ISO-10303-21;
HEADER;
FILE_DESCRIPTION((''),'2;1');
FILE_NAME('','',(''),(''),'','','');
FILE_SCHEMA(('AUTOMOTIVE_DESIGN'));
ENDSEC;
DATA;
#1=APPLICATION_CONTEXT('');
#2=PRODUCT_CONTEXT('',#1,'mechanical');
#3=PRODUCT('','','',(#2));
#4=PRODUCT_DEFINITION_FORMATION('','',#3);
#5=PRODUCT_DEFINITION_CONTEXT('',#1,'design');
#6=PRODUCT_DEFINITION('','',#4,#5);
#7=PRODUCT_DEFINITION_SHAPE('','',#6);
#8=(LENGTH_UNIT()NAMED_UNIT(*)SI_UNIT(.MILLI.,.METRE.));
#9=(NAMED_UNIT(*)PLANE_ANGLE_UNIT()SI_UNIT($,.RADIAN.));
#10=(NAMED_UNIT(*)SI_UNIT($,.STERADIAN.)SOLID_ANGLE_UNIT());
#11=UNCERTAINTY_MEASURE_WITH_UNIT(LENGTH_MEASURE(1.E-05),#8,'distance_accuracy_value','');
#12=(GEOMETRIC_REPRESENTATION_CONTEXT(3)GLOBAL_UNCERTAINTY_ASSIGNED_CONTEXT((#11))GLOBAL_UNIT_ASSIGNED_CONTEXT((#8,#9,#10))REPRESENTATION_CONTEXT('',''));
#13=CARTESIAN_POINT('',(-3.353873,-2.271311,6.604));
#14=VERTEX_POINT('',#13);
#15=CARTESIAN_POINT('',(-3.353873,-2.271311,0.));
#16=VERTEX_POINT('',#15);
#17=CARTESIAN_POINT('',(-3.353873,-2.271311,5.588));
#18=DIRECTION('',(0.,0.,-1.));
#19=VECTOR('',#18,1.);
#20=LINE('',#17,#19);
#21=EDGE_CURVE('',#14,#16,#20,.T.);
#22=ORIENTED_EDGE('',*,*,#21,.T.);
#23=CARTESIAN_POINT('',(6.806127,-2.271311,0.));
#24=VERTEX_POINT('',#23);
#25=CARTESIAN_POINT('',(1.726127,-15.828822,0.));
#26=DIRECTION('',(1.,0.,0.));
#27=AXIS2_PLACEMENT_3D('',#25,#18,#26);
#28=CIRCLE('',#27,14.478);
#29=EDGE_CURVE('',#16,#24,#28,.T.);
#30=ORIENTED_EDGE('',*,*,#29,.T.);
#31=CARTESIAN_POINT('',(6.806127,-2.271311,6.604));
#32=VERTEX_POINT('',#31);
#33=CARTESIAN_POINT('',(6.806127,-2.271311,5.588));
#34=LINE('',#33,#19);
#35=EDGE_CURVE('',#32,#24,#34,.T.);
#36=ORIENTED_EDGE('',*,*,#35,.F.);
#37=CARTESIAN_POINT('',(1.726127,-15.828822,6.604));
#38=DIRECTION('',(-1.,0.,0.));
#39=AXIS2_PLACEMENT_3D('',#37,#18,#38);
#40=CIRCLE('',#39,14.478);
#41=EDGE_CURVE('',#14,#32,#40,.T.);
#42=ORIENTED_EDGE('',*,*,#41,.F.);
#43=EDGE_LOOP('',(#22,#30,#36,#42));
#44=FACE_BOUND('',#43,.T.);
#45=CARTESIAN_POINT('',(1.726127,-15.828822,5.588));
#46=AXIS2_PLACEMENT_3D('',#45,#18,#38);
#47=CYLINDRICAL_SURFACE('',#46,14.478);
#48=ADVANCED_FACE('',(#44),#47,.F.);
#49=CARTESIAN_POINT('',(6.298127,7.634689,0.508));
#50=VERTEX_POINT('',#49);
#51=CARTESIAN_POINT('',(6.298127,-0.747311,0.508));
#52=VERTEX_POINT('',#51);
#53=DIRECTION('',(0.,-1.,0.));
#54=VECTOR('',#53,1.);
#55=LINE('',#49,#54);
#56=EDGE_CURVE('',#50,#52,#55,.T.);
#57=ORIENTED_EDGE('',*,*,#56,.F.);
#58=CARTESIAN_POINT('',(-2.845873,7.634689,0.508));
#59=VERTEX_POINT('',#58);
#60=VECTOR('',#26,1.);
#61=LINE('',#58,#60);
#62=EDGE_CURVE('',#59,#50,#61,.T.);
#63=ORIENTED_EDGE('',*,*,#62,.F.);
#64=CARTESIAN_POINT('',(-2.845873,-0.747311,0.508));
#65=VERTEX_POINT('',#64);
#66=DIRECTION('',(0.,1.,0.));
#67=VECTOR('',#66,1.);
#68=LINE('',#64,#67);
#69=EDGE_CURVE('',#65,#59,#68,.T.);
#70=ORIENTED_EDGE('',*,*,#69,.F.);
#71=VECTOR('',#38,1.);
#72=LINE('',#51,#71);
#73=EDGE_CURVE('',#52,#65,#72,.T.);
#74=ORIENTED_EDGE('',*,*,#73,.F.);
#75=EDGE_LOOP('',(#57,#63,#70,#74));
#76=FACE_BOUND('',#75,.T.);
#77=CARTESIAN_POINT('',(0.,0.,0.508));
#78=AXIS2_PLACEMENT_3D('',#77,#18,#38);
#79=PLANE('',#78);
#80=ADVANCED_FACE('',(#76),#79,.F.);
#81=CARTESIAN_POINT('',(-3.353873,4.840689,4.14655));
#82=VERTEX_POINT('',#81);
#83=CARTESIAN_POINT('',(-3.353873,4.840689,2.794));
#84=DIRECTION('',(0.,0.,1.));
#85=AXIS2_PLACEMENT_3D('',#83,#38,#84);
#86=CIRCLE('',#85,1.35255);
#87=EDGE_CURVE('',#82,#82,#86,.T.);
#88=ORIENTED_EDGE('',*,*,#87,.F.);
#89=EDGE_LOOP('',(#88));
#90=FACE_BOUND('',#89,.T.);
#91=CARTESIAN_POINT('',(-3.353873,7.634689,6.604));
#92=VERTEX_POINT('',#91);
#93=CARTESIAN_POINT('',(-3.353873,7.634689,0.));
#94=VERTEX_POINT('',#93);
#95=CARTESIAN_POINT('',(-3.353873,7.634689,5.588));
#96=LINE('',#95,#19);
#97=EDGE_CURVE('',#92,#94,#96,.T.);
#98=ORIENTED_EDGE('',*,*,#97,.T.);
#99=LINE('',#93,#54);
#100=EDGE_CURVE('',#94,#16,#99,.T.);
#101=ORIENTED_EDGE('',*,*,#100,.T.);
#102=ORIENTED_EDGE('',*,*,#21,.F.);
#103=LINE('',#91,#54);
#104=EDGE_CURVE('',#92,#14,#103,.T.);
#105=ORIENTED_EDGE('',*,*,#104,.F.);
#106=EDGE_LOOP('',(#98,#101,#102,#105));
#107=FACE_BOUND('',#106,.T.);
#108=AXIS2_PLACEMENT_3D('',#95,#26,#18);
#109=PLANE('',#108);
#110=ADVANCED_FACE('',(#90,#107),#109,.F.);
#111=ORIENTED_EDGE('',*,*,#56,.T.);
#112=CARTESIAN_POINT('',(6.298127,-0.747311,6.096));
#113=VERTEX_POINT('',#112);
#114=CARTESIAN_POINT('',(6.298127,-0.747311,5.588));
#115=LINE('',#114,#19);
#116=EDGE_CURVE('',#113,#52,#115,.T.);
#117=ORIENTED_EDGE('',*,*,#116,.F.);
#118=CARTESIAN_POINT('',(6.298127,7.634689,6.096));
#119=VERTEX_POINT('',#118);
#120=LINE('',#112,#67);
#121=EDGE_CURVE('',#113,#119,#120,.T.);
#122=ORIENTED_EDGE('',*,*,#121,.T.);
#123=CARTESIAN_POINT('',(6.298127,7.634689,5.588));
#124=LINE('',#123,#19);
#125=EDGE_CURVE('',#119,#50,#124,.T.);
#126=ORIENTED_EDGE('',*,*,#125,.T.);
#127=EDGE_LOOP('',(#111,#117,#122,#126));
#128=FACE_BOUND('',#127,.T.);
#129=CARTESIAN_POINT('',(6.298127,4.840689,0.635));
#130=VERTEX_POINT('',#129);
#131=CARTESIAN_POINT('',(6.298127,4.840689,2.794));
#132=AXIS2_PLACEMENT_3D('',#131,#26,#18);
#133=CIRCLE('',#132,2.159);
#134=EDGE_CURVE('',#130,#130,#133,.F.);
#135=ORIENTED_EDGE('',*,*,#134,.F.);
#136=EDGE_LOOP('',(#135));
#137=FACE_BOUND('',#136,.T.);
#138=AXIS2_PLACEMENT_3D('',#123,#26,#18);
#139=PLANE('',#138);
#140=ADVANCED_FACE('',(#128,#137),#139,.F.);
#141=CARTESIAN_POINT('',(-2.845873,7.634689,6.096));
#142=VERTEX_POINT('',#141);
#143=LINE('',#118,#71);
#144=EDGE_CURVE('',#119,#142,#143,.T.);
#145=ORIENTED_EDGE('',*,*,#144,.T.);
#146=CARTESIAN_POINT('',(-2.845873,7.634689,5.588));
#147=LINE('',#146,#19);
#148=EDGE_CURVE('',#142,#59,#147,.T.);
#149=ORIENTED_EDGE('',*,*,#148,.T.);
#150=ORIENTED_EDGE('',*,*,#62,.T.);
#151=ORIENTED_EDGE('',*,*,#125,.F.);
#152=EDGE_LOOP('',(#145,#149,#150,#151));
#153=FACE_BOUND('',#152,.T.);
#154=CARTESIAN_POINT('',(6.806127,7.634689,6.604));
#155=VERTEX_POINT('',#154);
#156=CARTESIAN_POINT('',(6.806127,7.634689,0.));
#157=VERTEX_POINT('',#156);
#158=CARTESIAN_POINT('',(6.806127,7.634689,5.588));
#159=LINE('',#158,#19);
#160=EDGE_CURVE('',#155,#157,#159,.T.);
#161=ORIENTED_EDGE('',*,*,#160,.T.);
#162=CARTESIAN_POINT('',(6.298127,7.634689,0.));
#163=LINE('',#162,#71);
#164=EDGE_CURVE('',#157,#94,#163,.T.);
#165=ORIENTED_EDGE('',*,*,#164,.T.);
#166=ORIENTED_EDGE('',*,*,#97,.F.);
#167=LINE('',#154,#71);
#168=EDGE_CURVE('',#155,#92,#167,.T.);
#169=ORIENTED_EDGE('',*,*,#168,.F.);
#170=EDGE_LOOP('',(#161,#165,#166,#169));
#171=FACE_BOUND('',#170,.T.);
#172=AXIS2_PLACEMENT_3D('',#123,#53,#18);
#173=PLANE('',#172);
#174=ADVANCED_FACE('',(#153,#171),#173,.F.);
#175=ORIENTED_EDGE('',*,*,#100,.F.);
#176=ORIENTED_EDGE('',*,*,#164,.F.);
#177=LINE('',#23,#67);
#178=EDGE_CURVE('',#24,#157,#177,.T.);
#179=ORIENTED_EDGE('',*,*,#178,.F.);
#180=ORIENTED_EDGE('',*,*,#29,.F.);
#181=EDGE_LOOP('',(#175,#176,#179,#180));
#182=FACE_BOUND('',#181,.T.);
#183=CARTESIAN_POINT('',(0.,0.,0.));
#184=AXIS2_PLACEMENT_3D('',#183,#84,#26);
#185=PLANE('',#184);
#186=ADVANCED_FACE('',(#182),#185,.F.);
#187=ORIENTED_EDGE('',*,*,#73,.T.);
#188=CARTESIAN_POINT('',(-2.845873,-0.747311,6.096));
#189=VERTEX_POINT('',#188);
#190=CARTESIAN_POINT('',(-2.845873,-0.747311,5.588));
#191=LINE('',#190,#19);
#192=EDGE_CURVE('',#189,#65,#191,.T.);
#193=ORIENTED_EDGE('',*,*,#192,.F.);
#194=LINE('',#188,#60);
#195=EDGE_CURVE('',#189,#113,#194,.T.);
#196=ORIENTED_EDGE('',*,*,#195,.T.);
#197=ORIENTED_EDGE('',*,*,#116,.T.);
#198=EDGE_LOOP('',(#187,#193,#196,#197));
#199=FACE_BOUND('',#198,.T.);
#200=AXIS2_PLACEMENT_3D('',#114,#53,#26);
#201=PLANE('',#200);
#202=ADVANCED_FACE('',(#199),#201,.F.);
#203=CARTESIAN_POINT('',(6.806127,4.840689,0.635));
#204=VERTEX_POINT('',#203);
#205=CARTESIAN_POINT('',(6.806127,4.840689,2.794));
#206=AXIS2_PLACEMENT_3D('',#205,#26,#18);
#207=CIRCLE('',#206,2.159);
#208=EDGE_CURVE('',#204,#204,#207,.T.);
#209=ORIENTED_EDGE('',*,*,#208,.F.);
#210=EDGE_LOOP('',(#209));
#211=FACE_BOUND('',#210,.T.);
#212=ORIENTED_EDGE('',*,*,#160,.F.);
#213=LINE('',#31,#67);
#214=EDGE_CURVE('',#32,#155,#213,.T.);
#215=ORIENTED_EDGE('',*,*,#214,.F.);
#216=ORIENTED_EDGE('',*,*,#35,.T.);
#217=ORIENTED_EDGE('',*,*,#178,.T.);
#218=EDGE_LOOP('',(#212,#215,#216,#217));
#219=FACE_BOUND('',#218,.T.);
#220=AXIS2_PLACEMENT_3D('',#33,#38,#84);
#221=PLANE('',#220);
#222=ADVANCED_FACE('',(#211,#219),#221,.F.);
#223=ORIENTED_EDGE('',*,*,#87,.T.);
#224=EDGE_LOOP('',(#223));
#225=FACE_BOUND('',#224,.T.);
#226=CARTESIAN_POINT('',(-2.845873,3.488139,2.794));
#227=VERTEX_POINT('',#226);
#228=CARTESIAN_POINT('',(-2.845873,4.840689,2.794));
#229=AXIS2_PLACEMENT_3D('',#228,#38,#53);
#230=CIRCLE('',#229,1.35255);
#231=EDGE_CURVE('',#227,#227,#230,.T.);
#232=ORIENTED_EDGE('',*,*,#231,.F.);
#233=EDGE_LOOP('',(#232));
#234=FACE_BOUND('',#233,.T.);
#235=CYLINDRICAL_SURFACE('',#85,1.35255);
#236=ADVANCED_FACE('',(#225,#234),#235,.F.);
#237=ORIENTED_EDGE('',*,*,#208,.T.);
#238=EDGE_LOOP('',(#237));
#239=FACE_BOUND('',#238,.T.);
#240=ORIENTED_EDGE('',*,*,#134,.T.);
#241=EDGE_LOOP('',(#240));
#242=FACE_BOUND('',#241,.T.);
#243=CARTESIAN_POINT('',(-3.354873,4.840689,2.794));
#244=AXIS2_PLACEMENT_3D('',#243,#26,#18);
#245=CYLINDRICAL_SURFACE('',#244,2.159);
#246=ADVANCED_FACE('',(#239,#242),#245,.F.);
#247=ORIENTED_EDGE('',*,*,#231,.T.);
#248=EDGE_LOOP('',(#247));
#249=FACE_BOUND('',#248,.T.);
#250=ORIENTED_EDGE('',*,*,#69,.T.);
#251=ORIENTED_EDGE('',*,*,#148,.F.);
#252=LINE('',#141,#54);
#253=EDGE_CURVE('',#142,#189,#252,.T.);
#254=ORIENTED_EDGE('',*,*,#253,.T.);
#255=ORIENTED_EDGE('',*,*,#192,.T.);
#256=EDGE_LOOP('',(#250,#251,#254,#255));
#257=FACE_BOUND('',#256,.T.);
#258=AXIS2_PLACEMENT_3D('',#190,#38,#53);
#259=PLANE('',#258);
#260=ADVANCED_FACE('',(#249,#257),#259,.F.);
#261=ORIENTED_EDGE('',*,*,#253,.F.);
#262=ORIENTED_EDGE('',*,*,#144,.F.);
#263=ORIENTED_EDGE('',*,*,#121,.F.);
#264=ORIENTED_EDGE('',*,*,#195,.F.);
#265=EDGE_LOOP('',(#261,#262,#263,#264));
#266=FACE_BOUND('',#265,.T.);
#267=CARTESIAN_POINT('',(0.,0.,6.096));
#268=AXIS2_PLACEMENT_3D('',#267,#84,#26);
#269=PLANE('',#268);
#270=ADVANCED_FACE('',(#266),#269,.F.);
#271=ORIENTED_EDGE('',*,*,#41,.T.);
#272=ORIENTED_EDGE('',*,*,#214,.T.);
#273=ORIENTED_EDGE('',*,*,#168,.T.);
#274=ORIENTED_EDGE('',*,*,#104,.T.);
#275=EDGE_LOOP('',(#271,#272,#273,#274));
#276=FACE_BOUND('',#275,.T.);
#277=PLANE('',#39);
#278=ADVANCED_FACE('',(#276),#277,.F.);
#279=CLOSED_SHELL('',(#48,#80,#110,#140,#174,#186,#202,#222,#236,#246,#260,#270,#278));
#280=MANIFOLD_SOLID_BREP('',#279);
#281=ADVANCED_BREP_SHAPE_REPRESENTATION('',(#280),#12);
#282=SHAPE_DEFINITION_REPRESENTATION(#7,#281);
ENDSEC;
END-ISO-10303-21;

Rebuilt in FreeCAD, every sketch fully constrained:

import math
import FreeCAD as App
import Part
import Sketcher
from FreeCAD import Vector
Q = App.Units.Quantity


def add_polygon(sketch, points):
    """Adds a closed chain of lines whose ends are joined by coincident constraints."""
    first, n = sketch.GeometryCount, len(points)
    for a, b in zip(points, points[1:] + points[:1]):
        sketch.addGeometry(Part.LineSegment(App.Vector(*a, 0), App.Vector(*b, 0)), False)
    for i in range(n):
        sketch.addConstraint(Sketcher.Constraint("Coincident", first + i, 2, first + (i + 1) % n, 1))

doc = App.newDocument("Part")
params = doc.addObject("Spreadsheet::Sheet", "Params")
for row, (alias, value) in enumerate([
    ("sketch1_width", "0.4 in"),
    ("sketch1_width2", "0.02 in"),
    ("sketch1_height", "0.39 in"),
    ("sketch1_height2", "0.33 in"),
    ("pad1_length", "0.22 in"),
    ("hole_diameter", "0.1065 in"),
    ("hole_depth", "0.02 in"),
    ("sketch3_diameter", "0.17 in"),
    ("sketch4_radius", "0.57 in"),
    ("sketch4_width", "0.4 in"),
    ("sketch5_radius", "0.57 in"),
    ("sketch5_width", "0.4 in"),
    ("sketch5_height", "0.39 in"),
    ("pad2_length", "0.04 in"),
    ("sketch6_width", "0.36 in"),
    ("pocket3_length", "0.33 in"),
    ("sketch7_width", "0.36 in"),
    ("sketch7_height", "0.33 in"),
    ("pad3_length", "0.02 in"),
    ("sketch8_width", "0.36 in"),
    ("sketch8_height", "0.33 in"),
    ("pad4_length", "0.02 in"),
], start=1):
    params.set(f"A{row}", alias)
    params.set(f"B{row}", "=" + value)
    params.setAlias(f"B{row}", alias)

body = doc.addObject("PartDesign::Body", "Body")

# Sketch on XY plane
sketch1 = body.newObject("Sketcher::SketchObject", "Sketch")
sketch1.AttachmentSupport = (doc.getObject("XY_Plane"), [""])
sketch1.MapMode = "FlatFace"
add_polygon(sketch1, [(-3.4, 7.6), (-3.4, -2.3), (6.8, -2.3), (6.8, 7.6), (6.3, 7.6), (6.3, -0.7), (-2.8, -0.7), (-2.8, 7.6)])  # lines 0-7
sketch1.addConstraint([
    Sketcher.Constraint("Vertical", 0),
    Sketcher.Constraint("Horizontal", 1),
    Sketcher.Constraint("Vertical", 2),
    Sketcher.Constraint("Horizontal", 3),
    Sketcher.Constraint("Vertical", 4),
    Sketcher.Constraint("Horizontal", 5),
    Sketcher.Constraint("Vertical", 6),
    Sketcher.Constraint("Horizontal", 7),
    Sketcher.Constraint("Horizontal", 3, 2, 6, 2),
    Sketcher.Constraint("Equal", 3, 7),
    Sketcher.Constraint("DistanceX", 1, 1, 1, 2, Q("0.4 in")),
    Sketcher.Constraint("DistanceX", 3, 2, 3, 1, Q("0.02 in")),
    Sketcher.Constraint("DistanceY", 0, 2, 0, 1, Q("0.39 in")),
    Sketcher.Constraint("DistanceY", 4, 2, 4, 1, Q("0.33 in")),
    Sketcher.Constraint("DistanceY", 0, 2, -1, 1, Q("2.271311 mm")),
    Sketcher.Constraint("DistanceX", 0, 2, -1, 1, Q("3.353873 mm")),
])
sketch1.setExpression("Constraints[18]", "Params.sketch1_width")
sketch1.setExpression("Constraints[19]", "Params.sketch1_width2")
sketch1.setExpression("Constraints[20]", "Params.sketch1_height")
sketch1.setExpression("Constraints[21]", "Params.sketch1_height2")
pad1 = body.newObject("PartDesign::Pad", "Pad")
pad1.Profile = sketch1
pad1.setExpression("Length", "Params.pad1_length")

# Sketch on YZ plane
sketch2 = body.newObject("Sketcher::SketchObject", "Sketch001")
sketch2.AttachmentSupport = (doc.getObject("YZ_Plane"), [""])
sketch2.MapMode = "FlatFace"
sketch2.AttachmentOffset = App.Placement(Vector(0, 0, -3.353873), App.Rotation())
sketch2.addGeometry(Part.Circle(Vector(4.8, 2.8, 0), Vector(0, 0, 1), 1.4), False)
sketch2.addConstraint([
    Sketcher.Constraint("Diameter", 0, Q("0.1065 in")),
    Sketcher.Constraint("DistanceY", -1, 1, 0, 3, Q("0.11 in")),
    Sketcher.Constraint("DistanceX", -1, 1, 0, 3, Q("4.840689 mm")),
])
doc.recompute()
hole = body.newObject("PartDesign::Hole", "Hole")
hole.Profile = sketch2
hole.ThreadType = "None"
hole.setExpression("Diameter", "Params.hole_diameter")
hole.DepthType = "Dimension"
hole.setExpression("Depth", "Params.hole_depth")
hole.DrillPoint = "Flat"
hole.Reversed = True

# Sketch on YZ plane
sketch3 = body.newObject("Sketcher::SketchObject", "Sketch002")
sketch3.AttachmentSupport = (doc.getObject("YZ_Plane"), [""])
sketch3.MapMode = "FlatFace"
sketch3.AttachmentOffset = App.Placement(Vector(0, 0, 6.806127), App.Rotation())
sketch3.addGeometry(Part.Circle(Vector(4.8, 2.8, 0), Vector(0, 0, 1), 2.2), False)
sketch3.addConstraint([
    Sketcher.Constraint("Diameter", 0, Q("0.17 in")),
    Sketcher.Constraint("DistanceY", -1, 1, 0, 3, Q("0.11 in")),
    Sketcher.Constraint("DistanceX", -1, 1, 0, 3, Q("4.840689 mm")),
])
sketch3.setExpression("Constraints[0]", "Params.sketch3_diameter")
pocket1 = body.newObject("PartDesign::Pocket", "Pocket")
pocket1.Profile = sketch3
pocket1.Type = "UpToFirst"

# Sketch on XY plane
sketch4 = body.newObject("Sketcher::SketchObject", "Sketch003")
sketch4.AttachmentSupport = (doc.getObject("XY_Plane"), [""])
sketch4.MapMode = "FlatFace"
sketch4.addGeometry([
    Part.LineSegment(Vector(7, -2, 0), Vector(-3, -2, 0)),
    Part.ArcOfCircle(Part.Circle(Vector(2, -16, 0), Vector(0, 0, 1), 14), math.radians(69), math.radians(111)),
], False)
sketch4.addConstraint([
    Sketcher.Constraint("Coincident", 0, 1, 1, 1),
    Sketcher.Constraint("Coincident", 1, 2, 0, 2),
    Sketcher.Constraint("Horizontal", 0),
    Sketcher.Constraint("Radius", 1, Q("0.57 in")),
    Sketcher.Constraint("DistanceX", 0, 2, 0, 1, Q("0.4 in")),
    Sketcher.Constraint("DistanceY", 1, 3, -1, 1, Q("15.828822 mm")),
    Sketcher.Constraint("DistanceX", -1, 1, 1, 3, Q("1.726127 mm")),
])
sketch4.setExpression("Constraints[3]", "Params.sketch4_radius")
sketch4.setExpression("Constraints[4]", "Params.sketch4_width")
pocket2 = body.newObject("PartDesign::Pocket", "Pocket001")
pocket2.Profile = sketch4
pocket2.Type = "ThroughAll"
pocket2.Reversed = True

# Sketch on XY plane
sketch5 = body.newObject("Sketcher::SketchObject", "Sketch004")
sketch5.AttachmentSupport = (doc.getObject("XY_Plane"), [""])
sketch5.MapMode = "FlatFace"
sketch5.AttachmentOffset = App.Placement(Vector(0, 0, 0.22 * 25.4), App.Rotation())
sketch5.addGeometry([
    Part.LineSegment(Vector(7, 8, 0), Vector(-3, 8, 0)),
    Part.LineSegment(Vector(-3, 8, 0), Vector(-3, -2, 0)),
    Part.ArcOfCircle(Part.Circle(Vector(2, -16, 0), Vector(0, 0, 1), 14), math.radians(69), math.radians(111)),
    Part.LineSegment(Vector(7, -2, 0), Vector(7, 8, 0)),
], False)
sketch5.addConstraint([
    Sketcher.Constraint("Coincident", 0, 2, 1, 1),
    Sketcher.Constraint("Coincident", 1, 2, 2, 2),
    Sketcher.Constraint("Coincident", 2, 1, 3, 1),
    Sketcher.Constraint("Coincident", 3, 2, 0, 1),
    Sketcher.Constraint("Horizontal", 0),
    Sketcher.Constraint("Vertical", 1),
    Sketcher.Constraint("Vertical", 3),
    Sketcher.Constraint("Horizontal", 1, 2, 2, 1),
    Sketcher.Constraint("Radius", 2, Q("0.57 in")),
    Sketcher.Constraint("DistanceX", 0, 2, 0, 1, Q("0.4 in")),
    Sketcher.Constraint("DistanceY", 1, 2, 1, 1, Q("0.39 in")),
    Sketcher.Constraint("DistanceY", 2, 3, -1, 1, Q("15.828822 mm")),
    Sketcher.Constraint("DistanceX", -1, 1, 2, 3, Q("1.726127 mm")),
])
sketch5.setExpression("Constraints[8]", "Params.sketch5_radius")
sketch5.setExpression("Constraints[9]", "Params.sketch5_width")
sketch5.setExpression("Constraints[10]", "Params.sketch5_height")
pad2 = body.newObject("PartDesign::Pad", "Pad001")
pad2.Profile = sketch5
pad2.setExpression("Length", "Params.pad2_length")

# Sketch on XZ plane
sketch6 = body.newObject("Sketcher::SketchObject", "Sketch005")
sketch6.AttachmentSupport = (doc.getObject("XZ_Plane"), [""])
sketch6.MapMode = "FlatFace"
sketch6.AttachmentOffset = App.Placement(Vector(0, 0, -7.634689), App.Rotation())
add_polygon(sketch6, [(-2.8, 5.6), (-2.8, 8.2), (6.3, 8.2), (6.3, 5.6)])  # lines 0-3
sketch6.addConstraint([
    Sketcher.Constraint("Vertical", 0),
    Sketcher.Constraint("Horizontal", 1),
    Sketcher.Constraint("Vertical", 2),
    Sketcher.Constraint("Horizontal", 3),
    Sketcher.Constraint("DistanceX", 1, 1, 1, 2, Q("0.36 in")),
    Sketcher.Constraint("DistanceY", -1, 1, 2, 2, Q("0.22 in")),
    Sketcher.Constraint("DistanceY", 0, 1, 0, 2, Q("2.566925 mm")),
    Sketcher.Constraint("DistanceX", 0, 2, -1, 1, Q("2.845873 mm")),
])
sketch6.setExpression("Constraints[8]", "Params.sketch6_width")
pocket3 = body.newObject("PartDesign::Pocket", "Pocket002")
pocket3.Profile = sketch6
pocket3.setExpression("Length", "Params.pocket3_length")
pocket3.Reversed = True

# Sketch on XY plane
sketch7 = body.newObject("Sketcher::SketchObject", "Sketch006")
sketch7.AttachmentSupport = (doc.getObject("XY_Plane"), [""])
sketch7.MapMode = "FlatFace"
sketch7.AttachmentOffset = App.Placement(Vector(0, 0, 0.26 * 25.4), App.Rotation())
add_polygon(sketch7, [(-3, 8), (-3, -1), (6, -1), (6, 8)])  # lines 0-3
sketch7.addConstraint([
    Sketcher.Constraint("Vertical", 0),
    Sketcher.Constraint("Horizontal", 1),
    Sketcher.Constraint("Vertical", 2),
    Sketcher.Constraint("Horizontal", 3),
    Sketcher.Constraint("DistanceX", 1, 1, 1, 2, Q("0.36 in")),
    Sketcher.Constraint("DistanceY", 0, 2, 0, 1, Q("0.33 in")),
    Sketcher.Constraint("DistanceY", 0, 2, -1, 1, Q("0.747311 mm")),
    Sketcher.Constraint("DistanceX", 0, 2, -1, 1, Q("2.845873 mm")),
])
sketch7.setExpression("Constraints[8]", "Params.sketch7_width")
sketch7.setExpression("Constraints[9]", "Params.sketch7_height")
pad3 = body.newObject("PartDesign::Pad", "Pad002")
pad3.Profile = sketch7
pad3.setExpression("Length", "Params.pad3_length")
pad3.Reversed = True

# Sketch on XY plane
sketch8 = body.newObject("Sketcher::SketchObject", "Sketch007")
sketch8.AttachmentSupport = (doc.getObject("XY_Plane"), [""])
sketch8.MapMode = "FlatFace"
add_polygon(sketch8, [(6, 8), (6, -1), (-3, -1), (-3, 8)])  # lines 0-3
sketch8.addConstraint([
    Sketcher.Constraint("Vertical", 0),
    Sketcher.Constraint("Horizontal", 1),
    Sketcher.Constraint("Vertical", 2),
    Sketcher.Constraint("Horizontal", 3),
    Sketcher.Constraint("DistanceX", 1, 2, 1, 1, Q("0.36 in")),
    Sketcher.Constraint("DistanceY", 0, 2, 0, 1, Q("0.33 in")),
    Sketcher.Constraint("DistanceY", 0, 2, -1, 1, Q("0.747311 mm")),
    Sketcher.Constraint("DistanceX", -1, 1, 0, 2, Q("6.298127 mm")),
])
sketch8.setExpression("Constraints[8]", "Params.sketch8_width")
sketch8.setExpression("Constraints[9]", "Params.sketch8_height")
pad4 = body.newObject("PartDesign::Pad", "Pad003")
pad4.Profile = sketch8
pad4.setExpression("Length", "Params.pad4_length")

doc.recompute()
